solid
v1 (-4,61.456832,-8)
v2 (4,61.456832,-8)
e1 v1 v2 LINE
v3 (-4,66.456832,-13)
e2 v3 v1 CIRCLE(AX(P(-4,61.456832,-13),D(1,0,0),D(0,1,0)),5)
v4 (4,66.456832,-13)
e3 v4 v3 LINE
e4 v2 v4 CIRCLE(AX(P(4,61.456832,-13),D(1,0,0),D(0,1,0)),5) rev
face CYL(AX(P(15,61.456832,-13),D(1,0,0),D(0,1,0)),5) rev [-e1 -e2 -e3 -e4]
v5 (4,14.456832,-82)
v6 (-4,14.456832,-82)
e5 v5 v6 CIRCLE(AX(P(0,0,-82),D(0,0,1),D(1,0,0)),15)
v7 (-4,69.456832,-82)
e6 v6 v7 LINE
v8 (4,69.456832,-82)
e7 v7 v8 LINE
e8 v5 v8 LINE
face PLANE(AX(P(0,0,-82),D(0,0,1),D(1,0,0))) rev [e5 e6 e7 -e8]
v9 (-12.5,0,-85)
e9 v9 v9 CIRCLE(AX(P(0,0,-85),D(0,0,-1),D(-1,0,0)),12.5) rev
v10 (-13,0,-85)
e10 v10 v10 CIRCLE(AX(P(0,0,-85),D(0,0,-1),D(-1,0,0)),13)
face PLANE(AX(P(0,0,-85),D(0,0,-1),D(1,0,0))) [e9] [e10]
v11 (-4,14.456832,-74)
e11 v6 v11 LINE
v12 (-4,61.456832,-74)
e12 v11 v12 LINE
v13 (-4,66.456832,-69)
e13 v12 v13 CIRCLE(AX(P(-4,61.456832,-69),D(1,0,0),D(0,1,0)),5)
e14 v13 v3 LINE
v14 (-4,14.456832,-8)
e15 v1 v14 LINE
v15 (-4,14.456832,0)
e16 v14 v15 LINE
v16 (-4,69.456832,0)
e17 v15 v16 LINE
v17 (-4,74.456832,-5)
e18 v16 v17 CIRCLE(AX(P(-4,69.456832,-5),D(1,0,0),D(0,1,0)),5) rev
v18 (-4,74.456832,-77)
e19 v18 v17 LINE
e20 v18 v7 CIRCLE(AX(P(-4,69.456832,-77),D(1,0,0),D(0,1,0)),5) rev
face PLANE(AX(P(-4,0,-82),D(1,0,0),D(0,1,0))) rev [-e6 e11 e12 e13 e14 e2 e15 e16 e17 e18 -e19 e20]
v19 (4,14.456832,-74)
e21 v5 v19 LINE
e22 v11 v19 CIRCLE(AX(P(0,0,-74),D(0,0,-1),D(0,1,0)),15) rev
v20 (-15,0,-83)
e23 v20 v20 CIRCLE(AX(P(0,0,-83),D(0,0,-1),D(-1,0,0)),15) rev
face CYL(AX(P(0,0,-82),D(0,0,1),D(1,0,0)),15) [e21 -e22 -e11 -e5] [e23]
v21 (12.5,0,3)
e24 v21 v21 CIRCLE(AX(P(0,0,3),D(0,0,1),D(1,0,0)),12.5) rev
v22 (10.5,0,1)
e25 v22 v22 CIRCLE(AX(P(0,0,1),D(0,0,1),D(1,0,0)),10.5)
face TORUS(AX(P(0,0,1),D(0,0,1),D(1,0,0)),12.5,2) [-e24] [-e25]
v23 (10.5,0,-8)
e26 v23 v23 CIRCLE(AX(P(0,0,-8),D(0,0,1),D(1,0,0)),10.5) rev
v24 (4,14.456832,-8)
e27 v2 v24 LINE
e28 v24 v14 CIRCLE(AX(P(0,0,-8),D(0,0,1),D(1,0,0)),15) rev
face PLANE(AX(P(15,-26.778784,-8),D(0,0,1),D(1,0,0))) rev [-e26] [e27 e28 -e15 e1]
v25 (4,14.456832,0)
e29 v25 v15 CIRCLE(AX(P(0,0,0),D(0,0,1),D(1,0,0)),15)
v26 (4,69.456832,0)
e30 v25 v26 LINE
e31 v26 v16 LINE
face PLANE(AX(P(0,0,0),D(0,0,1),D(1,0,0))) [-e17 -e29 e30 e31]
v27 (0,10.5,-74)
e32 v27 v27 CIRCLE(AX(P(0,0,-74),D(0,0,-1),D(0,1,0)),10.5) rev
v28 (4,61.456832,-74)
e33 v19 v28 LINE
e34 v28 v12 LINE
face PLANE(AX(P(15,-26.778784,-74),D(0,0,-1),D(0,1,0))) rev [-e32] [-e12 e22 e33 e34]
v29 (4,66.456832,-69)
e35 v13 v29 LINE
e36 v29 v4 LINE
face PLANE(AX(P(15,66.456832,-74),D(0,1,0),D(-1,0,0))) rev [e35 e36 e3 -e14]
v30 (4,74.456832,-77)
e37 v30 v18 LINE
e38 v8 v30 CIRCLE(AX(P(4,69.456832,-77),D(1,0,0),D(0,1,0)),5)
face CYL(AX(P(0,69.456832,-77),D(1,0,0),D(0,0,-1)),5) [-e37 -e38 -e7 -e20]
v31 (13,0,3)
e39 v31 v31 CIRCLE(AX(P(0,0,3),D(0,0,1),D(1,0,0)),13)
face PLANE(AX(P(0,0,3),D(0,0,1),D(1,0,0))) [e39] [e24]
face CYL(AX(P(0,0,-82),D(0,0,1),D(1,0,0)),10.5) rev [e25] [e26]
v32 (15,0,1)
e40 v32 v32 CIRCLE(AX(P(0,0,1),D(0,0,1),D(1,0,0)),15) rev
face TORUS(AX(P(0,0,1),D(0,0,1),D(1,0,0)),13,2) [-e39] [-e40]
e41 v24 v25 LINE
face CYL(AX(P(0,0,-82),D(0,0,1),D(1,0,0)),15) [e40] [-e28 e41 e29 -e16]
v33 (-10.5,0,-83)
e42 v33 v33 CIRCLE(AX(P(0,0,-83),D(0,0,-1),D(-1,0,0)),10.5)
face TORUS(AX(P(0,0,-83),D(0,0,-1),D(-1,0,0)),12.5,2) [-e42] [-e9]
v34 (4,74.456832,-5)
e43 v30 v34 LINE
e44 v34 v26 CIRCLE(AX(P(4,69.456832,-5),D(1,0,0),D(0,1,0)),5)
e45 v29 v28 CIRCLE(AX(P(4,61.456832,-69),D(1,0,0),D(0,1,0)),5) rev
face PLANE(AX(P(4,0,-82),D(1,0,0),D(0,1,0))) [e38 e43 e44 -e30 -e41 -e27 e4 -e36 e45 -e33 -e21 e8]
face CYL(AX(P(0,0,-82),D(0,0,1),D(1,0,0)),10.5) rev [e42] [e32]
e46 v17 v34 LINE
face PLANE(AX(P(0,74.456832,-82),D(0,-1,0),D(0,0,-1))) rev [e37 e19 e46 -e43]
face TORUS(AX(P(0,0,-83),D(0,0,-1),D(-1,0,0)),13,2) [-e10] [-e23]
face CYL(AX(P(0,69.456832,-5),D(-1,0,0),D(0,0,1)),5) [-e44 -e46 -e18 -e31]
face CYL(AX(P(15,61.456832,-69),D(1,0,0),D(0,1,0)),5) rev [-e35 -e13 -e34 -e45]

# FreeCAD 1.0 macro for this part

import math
import FreeCAD as App
import Part
import Sketcher

V = App.Vector
Q = App.Units.Quantity


def edges_at(feature, points):
    """Names of the edges that pass closest to the given points."""
    edges = feature.Shape.Edges
    near = lambda p: min(range(len(edges)), key=lambda i: edges[i].distToShape(Part.Vertex(*p))[0])
    return sorted({f"Edge{near(p) + 1}" for p in points})


def add_polygon(sketch, points):
    """Adds a closed chain of lines whose ends are joined by coincident constraints."""
    first, n = sketch.GeometryCount, len(points)
    for a, b in zip(points, points[1:] + points[:1]):
        sketch.addGeometry(Part.LineSegment(App.Vector(*a, 0), App.Vector(*b, 0)), False)
    for i in range(n):
        sketch.addConstraint(Sketcher.Constraint("Coincident", first + i, 2, first + (i + 1) % n, 1))

doc = App.newDocument("Part")
body = doc.addObject("PartDesign::Body", "Body")

sketch1 = body.newObject("Sketcher::SketchObject", "Sketch")
sketch1.AttachmentSupport = (doc.getObject("XY_Plane"), [""])
sketch1.MapMode = "FlatFace"
sketch1.addGeometry(Part.ArcOfCircle(Part.Circle(V(0, 0, 0), V(0, 0, 1), 15), math.radians(0), math.radians(75)), False)
sketch1.addGeometry(Part.LineSegment(V(4, 14, 0), V(4, 74, 0)), False)
sketch1.addGeometry(Part.LineSegment(V(4, 74, 0), V(-4, 74, 0)), False)
sketch1.addGeometry(Part.LineSegment(V(-4, 74, 0), V(-4, 14, 0)), False)
sketch1.addGeometry(Part.ArcOfCircle(Part.Circle(V(0, 0, 0), V(0, 0, 1), 15), math.radians(105), math.radians(360)), False)
sketch1.addGeometry(Part.Circle(V(0, 0, 0), V(0, 0, 1), 10), False)
sketch1.addConstraint(Sketcher.Constraint("Coincident", 0, 2, 1, 1))
sketch1.addConstraint(Sketcher.Constraint("Coincident", 1, 2, 2, 1))
sketch1.addConstraint(Sketcher.Constraint("Coincident", 2, 2, 3, 1))
sketch1.addConstraint(Sketcher.Constraint("Coincident", 3, 2, 4, 1))
sketch1.addConstraint(Sketcher.Constraint("Tangent", 4, 2, 0, 1))
sketch1.addConstraint(Sketcher.Constraint("Vertical", 1))
sketch1.addConstraint(Sketcher.Constraint("Horizontal", 2))
sketch1.addConstraint(Sketcher.Constraint("Vertical", 3))
sketch1.addConstraint(Sketcher.Constraint("Coincident", 0, 3, -1, 1))
sketch1.addConstraint(Sketcher.Constraint("Coincident", 5, 3, -1, 1))
sketch1.addConstraint(Sketcher.Constraint("Equal", 0, 4))
sketch1.addConstraint(Sketcher.Constraint("PointOnObject", 4, 2, -1))
sketch1.addConstraint(Sketcher.Constraint("Horizontal", 0, 2, 3, 2))
sketch1.addConstraint(Sketcher.Constraint("Diameter", 5, Q("21 mm")))
sketch1.addConstraint(Sketcher.Constraint("Radius", 0, Q("15 mm")))
sketch1.addConstraint(Sketcher.Constraint("DistanceX", 2, 2, 2, 1, Q("8 mm")))
sketch1.addConstraint(Sketcher.Constraint("DistanceY", 1, 1, 1, 2, Q("60 mm")))
pad1 = body.newObject("PartDesign::Pad", "Pad")
pad1.Profile = sketch1
pad1.Length = 82
pad1.Reversed = True

sketch2 = body.newObject("Sketcher::SketchObject", "Sketch001")
sketch2.AttachmentSupport = (doc.getObject("XY_Plane"), [""])
sketch2.MapMode = "FlatFace"
sketch2.AttachmentOffset = App.Placement(V(0, 0, 3), App.Rotation())
sketch2.addGeometry(Part.ArcOfCircle(Part.Circle(V(0, 0, 0), V(0, 0, 1), 15), math.radians(0), math.radians(75)), False)
sketch2.addGeometry(Part.ArcOfCircle(Part.Circle(V(0, 0, 0), V(0, 0, 1), 15), math.radians(75), math.radians(105)), False)
sketch2.addGeometry(Part.ArcOfCircle(Part.Circle(V(0, 0, 0), V(0, 0, 1), 15), math.radians(105), math.radians(360)), False)
sketch2.addGeometry(Part.Circle(V(0, 0, 0), V(0, 0, 1), 10), False)
sketch2.addConstraint(Sketcher.Constraint("Tangent", 0, 2, 1, 1))
sketch2.addConstraint(Sketcher.Constraint("Tangent", 1, 2, 2, 1))
sketch2.addConstraint(Sketcher.Constraint("Tangent", 2, 2, 0, 1))
sketch2.addConstraint(Sketcher.Constraint("Coincident", 0, 3, -1, 1))
sketch2.addConstraint(Sketcher.Constraint("Coincident", 3, 3, -1, 1))
sketch2.addConstraint(Sketcher.Constraint("PointOnObject", 2, 2, -1))
sketch2.addConstraint(Sketcher.Constraint("Horizontal", 0, 2, 1, 2))
sketch2.addConstraint(Sketcher.Constraint("Diameter", 3, Q("21 mm")))
sketch2.addConstraint(Sketcher.Constraint("Radius", 0, Q("15 mm")))
sketch2.addConstraint(Sketcher.Constraint("DistanceX", -1, 1, 0, 2, Q("4 mm")))
pad2 = body.newObject("PartDesign::Pad", "Pad001")
pad2.Profile = sketch2
pad2.Length = 3
pad2.Reversed = True
doc.recompute()

datumplane = body.newObject("PartDesign::Plane", "DatumPlane")
datumplane.AttachmentSupport = (doc.getObject("XY_Plane"), [""])
datumplane.MapMode = "FlatFace"
datumplane.AttachmentOffset = App.Placement(V(0, 0, -41), App.Rotation())
mirrored = body.newObject("PartDesign::Mirrored", "Mirrored")
mirrored.Originals = [pad2]
mirrored.MirrorPlane = (datumplane, [""])
body.Tip = mirrored

sketch3 = body.newObject("Sketcher::SketchObject", "Sketch002")
sketch3.AttachmentSupport = (doc.getObject("YZ_Plane"), [""])
sketch3.MapMode = "FlatFace"
sketch3.AttachmentOffset = App.Placement(V(0, 0, -4), App.Rotation())
add_polygon(sketch3, [(66, -74), (-27, -74), (-27, -8), (66, -8)])
sketch3.addConstraint(Sketcher.Constraint("Horizontal", 0))
sketch3.addConstraint(Sketcher.Constraint("Vertical", 1))
sketch3.addConstraint(Sketcher.Constraint("Horizontal", 2))
sketch3.addConstraint(Sketcher.Constraint("Vertical", 3))
sketch3.addConstraint(Sketcher.Constraint("DistanceY", 1, 1, 1, 2, Q("66 mm")))
sketch3.addConstraint(Sketcher.Constraint("DistanceY", 0, 2, -1, 1, Q("74 mm")))
sketch3.addConstraint(Sketcher.Constraint("DistanceX", 0, 2, 0, 1, Q("93.235617 mm")))
sketch3.addConstraint(Sketcher.Constraint("DistanceX", 0, 2, -1, 1, Q("26.778784 mm")))
pocket1 = body.newObject("PartDesign::Pocket", "Pocket")
pocket1.Profile = sketch3
pocket1.Type = "ThroughAll"
pocket1.Midplane = True
doc.recompute()

fillet = body.newObject("PartDesign::Fillet", "Fillet")
fillet.Base = (pocket1, edges_at(pocket1, [
    (0, 74.457, -82),
    (0, 66.457, -8),
    (0, 66.457, -74),
    (0, 74.457, 0),
]))
fillet.Radius = 5
doc.recompute()

fillet2 = body.newObject("PartDesign::Fillet", "Fillet001")
fillet2.Base = (fillet, edges_at(fillet, [
    (-10.5, 0, 3),
    (-9.083, -11.937, 3),
    (-9.083, -11.937, -85),
    (-10.5, 0, -85),
]))
fillet2.Radius = 2

doc.recompute()
